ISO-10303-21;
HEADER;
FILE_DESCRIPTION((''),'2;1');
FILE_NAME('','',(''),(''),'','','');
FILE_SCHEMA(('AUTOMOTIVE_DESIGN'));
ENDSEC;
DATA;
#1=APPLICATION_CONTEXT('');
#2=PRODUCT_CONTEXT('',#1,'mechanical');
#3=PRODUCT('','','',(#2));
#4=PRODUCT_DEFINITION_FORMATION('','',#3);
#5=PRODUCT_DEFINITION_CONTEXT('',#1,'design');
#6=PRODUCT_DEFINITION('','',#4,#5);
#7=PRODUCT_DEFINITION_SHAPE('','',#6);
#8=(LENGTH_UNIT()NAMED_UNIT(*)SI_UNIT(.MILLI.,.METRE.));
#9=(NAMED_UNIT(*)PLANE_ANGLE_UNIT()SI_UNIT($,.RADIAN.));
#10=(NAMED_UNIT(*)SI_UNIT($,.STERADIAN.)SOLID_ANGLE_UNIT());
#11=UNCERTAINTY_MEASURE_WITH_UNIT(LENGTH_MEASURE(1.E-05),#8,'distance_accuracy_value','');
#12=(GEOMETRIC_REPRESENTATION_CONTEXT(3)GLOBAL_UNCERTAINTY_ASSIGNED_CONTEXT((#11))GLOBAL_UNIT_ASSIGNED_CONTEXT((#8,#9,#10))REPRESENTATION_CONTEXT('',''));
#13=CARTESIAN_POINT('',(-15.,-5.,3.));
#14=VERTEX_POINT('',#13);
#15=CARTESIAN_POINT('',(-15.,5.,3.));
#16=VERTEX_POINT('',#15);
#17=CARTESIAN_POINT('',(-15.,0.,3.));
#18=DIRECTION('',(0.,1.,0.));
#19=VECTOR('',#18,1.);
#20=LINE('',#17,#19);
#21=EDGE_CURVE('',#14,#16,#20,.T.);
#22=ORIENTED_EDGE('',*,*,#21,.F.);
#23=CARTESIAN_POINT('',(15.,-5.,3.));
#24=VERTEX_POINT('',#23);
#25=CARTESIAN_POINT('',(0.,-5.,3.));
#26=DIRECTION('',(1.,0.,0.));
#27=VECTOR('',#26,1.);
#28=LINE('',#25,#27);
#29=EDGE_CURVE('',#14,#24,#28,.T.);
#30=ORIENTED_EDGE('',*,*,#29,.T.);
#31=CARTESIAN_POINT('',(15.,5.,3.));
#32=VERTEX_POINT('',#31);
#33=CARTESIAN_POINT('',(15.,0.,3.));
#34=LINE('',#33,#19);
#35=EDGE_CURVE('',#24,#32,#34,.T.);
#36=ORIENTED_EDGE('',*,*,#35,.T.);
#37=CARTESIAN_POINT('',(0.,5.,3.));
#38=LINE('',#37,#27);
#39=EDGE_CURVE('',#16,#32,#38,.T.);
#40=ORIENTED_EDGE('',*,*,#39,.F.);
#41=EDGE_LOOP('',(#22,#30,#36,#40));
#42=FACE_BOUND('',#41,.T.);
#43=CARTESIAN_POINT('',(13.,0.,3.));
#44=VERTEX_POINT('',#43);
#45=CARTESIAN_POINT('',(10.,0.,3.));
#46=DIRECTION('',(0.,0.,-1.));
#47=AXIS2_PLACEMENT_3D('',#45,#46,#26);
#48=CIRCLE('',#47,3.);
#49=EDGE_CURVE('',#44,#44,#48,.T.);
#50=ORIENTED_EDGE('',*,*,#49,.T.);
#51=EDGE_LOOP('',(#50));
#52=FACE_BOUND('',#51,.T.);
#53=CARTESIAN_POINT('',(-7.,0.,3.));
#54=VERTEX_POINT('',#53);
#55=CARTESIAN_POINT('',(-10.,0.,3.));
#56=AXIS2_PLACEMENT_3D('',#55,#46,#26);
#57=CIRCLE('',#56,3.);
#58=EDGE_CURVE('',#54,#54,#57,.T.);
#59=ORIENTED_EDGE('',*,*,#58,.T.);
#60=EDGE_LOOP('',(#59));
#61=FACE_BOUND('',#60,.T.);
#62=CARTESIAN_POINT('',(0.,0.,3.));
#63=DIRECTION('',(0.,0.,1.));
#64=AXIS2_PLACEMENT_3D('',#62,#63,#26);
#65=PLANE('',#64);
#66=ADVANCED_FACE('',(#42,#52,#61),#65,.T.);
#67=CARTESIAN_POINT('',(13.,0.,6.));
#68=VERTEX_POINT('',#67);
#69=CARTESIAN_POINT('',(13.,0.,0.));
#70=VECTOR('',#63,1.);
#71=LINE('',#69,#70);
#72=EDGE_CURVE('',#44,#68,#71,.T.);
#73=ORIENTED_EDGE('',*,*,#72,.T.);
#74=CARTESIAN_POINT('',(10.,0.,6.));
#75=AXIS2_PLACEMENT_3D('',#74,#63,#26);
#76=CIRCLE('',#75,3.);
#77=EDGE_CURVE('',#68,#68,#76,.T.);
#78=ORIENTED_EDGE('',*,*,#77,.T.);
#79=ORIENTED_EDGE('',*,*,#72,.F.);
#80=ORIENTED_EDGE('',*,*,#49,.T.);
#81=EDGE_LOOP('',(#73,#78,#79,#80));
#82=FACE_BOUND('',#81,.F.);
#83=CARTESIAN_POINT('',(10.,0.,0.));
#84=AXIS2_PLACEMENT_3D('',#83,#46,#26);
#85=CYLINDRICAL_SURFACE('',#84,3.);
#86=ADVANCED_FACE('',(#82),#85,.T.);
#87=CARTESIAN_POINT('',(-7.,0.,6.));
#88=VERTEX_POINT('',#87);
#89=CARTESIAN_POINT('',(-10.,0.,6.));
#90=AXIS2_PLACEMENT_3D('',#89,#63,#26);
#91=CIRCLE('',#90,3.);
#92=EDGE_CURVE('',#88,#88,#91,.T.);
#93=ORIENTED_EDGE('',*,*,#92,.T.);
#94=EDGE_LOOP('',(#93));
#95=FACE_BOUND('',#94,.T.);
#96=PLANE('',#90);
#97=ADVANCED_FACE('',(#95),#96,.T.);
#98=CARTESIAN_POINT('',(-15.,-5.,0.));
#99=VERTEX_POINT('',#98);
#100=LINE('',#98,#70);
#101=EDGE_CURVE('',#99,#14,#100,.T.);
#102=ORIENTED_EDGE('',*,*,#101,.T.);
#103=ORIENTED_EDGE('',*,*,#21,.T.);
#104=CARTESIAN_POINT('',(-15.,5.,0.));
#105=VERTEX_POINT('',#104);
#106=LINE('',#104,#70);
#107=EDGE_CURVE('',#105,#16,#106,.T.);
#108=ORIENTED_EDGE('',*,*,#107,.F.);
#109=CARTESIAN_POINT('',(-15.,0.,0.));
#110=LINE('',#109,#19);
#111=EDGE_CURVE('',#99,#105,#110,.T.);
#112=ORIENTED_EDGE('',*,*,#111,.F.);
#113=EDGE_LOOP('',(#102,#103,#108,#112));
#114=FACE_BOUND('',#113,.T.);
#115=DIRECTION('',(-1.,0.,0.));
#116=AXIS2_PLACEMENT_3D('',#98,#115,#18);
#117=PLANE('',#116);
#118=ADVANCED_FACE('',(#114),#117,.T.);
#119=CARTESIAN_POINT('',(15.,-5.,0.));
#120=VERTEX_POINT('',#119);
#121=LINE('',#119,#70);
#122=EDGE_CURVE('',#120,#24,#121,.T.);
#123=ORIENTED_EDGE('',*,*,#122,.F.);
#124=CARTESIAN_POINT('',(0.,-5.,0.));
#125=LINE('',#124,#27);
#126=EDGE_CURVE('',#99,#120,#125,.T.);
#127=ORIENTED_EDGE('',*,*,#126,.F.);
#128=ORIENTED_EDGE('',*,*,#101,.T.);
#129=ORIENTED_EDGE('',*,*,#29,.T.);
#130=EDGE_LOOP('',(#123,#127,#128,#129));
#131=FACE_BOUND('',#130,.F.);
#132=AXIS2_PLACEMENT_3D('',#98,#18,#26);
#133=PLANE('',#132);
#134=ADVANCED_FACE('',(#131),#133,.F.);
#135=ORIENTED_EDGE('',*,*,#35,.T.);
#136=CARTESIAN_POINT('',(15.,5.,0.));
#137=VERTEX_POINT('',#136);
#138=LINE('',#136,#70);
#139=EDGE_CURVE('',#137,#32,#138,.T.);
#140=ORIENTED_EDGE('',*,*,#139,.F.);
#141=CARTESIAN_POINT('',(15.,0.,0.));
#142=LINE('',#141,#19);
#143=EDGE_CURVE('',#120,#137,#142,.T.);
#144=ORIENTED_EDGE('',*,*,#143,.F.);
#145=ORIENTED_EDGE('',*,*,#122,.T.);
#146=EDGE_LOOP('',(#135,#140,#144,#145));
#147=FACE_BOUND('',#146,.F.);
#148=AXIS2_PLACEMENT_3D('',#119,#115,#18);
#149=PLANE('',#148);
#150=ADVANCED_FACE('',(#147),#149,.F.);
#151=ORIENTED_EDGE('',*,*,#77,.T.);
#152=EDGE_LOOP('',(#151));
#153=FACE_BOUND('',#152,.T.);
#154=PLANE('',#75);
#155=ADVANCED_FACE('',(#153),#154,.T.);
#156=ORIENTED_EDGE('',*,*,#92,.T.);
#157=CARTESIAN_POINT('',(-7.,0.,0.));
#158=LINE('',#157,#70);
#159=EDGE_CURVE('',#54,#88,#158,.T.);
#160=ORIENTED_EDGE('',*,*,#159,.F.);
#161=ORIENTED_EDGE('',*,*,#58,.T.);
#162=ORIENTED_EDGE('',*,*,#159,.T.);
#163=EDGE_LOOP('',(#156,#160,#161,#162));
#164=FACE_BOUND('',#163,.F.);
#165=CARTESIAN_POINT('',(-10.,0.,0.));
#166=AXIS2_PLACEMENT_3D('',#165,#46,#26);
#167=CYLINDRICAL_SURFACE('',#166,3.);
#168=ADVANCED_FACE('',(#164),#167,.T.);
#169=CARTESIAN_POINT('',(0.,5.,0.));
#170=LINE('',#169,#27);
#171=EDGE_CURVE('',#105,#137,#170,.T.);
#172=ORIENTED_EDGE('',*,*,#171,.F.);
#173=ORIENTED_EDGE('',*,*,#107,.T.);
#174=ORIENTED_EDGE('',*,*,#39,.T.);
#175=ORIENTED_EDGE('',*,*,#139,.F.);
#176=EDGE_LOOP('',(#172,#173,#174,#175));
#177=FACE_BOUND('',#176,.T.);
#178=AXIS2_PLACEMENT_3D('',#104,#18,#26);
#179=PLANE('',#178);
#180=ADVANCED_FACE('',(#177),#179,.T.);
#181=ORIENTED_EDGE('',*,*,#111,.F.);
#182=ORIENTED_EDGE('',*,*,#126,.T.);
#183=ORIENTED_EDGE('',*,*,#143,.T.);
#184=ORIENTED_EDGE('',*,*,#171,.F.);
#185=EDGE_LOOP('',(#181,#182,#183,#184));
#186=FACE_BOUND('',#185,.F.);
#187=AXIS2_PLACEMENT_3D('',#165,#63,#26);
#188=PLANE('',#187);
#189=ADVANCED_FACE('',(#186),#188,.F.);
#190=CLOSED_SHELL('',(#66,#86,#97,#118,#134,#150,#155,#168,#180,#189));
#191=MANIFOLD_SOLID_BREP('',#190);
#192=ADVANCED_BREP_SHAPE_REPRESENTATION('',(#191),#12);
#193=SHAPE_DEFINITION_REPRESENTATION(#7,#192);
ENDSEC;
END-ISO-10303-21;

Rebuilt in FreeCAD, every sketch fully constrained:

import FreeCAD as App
import Part
import Sketcher


def add_polygon(sketch, points):
    """Adds a closed chain of lines whose ends are joined by coincident constraints."""
    first, n = sketch.GeometryCount, len(points)
    for a, b in zip(points, points[1:] + points[:1]):
        sketch.addGeometry(Part.LineSegment(App.Vector(*a, 0), App.Vector(*b, 0)), False)
    for i in range(n):
        sketch.addConstraint(Sketcher.Constraint("Coincident", first + i, 2, first + (i + 1) % n, 1))

doc = App.newDocument("Part")
body = doc.addObject("PartDesign::Body", "Body")

# Sketch on XY plane
sketch1 = body.newObject("Sketcher::SketchObject", "Sketch")
sketch1.AttachmentSupport = (doc.getObject("XY_Plane"), [""])
sketch1.MapMode = "FlatFace"
add_polygon(sketch1, [(-15, 5), (-15, -5), (15, -5), (15, 5)])  # lines 0-3
sketch1.addConstraint([
    Sketcher.Constraint("Vertical", 0),
    Sketcher.Constraint("Horizontal", 1),
    Sketcher.Constraint("Vertical", 2),
    Sketcher.Constraint("Horizontal", 3),
    Sketcher.Constraint("Symmetric", 0, 2, 2, 2, -1, 1),
    Sketcher.Constraint("DistanceX", 1, 1, 1, 2, 30.0),
    Sketcher.Constraint("DistanceY", 0, 2, 0, 1, 10.0),
])
pad1 = body.newObject("PartDesign::Pad", "Pad")
pad1.Profile = sketch1
pad1.Length = 3

# Sketch on XY plane
sketch2 = body.newObject("Sketcher::SketchObject", "Sketch001")
sketch2.AttachmentSupport = (doc.getObject("XY_Plane"), [""])
sketch2.MapMode = "FlatFace"
sketch2.addGeometry([
    Part.Circle(App.Vector(-10, 0, 0), App.Vector(0, 0, 1), 3),
    Part.Circle(App.Vector(10, 0, 0), App.Vector(0, 0, 1), 3),
], False)
sketch2.addConstraint([
    Sketcher.Constraint("Equal", 0, 1),
    Sketcher.Constraint("Symmetric", 0, 3, 1, 3, -1, 1),
    Sketcher.Constraint("PointOnObject", 0, 3, -1),
    Sketcher.Constraint("Diameter", 0, 6.0),
    Sketcher.Constraint("DistanceX", 0, 3, -1, 1, 10.0),
])
pad2 = body.newObject("PartDesign::Pad", "Pad001")
pad2.Profile = sketch2
pad2.Length = 6

doc.recompute()
